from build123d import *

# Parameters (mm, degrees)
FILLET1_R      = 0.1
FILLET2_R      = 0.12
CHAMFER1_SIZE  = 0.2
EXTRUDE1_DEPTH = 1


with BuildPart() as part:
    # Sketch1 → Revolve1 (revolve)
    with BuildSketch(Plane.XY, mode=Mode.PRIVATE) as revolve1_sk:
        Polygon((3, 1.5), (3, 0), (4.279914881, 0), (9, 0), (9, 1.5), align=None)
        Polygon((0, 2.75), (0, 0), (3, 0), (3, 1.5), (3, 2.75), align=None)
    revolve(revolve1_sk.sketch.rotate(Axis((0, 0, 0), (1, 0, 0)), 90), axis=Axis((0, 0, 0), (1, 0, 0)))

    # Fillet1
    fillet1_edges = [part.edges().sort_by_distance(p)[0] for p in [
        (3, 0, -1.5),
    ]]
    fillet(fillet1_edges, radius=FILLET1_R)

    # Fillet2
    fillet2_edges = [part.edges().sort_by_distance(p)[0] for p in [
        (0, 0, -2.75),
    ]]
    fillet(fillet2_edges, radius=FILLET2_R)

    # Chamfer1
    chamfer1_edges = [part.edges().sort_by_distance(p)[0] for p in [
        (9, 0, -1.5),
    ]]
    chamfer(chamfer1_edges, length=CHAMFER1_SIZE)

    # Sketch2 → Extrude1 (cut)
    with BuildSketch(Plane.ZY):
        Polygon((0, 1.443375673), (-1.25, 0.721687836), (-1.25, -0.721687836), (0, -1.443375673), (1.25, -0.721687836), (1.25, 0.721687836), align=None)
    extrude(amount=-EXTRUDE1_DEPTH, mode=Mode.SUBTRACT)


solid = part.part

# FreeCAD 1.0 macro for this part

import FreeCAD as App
import Part
import Sketcher
Q = App.Units.Quantity


def edges_at(feature, points):
    """Names of the edges that pass closest to the given points."""
    edges = feature.Shape.Edges
    near = lambda p: min(range(len(edges)), key=lambda i: edges[i].distToShape(Part.Vertex(*p))[0])
    return sorted({f"Edge{near(p) + 1}" for p in points})


def add_polygon(sketch, points):
    """Adds a closed chain of lines whose ends are joined by coincident constraints."""
    first, n = sketch.GeometryCount, len(points)
    for a, b in zip(points, points[1:] + points[:1]):
        sketch.addGeometry(Part.LineSegment(App.Vector(*a, 0), App.Vector(*b, 0)), False)
    for i in range(n):
        sketch.addConstraint(Sketcher.Constraint("Coincident", first + i, 2, first + (i + 1) % n, 1))

doc = App.newDocument("Part")
params = doc.addObject("Spreadsheet::Sheet", "Params")
for row, (alias, value) in enumerate([
    ("sketch1_width", "6 mm"),
    ("sketch1_width2", "3 mm"),
    ("sketch1_height", "1.5 mm"),
    ("sketch1_height2", "1.25 mm"),
    ("revolution_angle", "360 deg"),
    ("fillet_radius", "0.1 mm"),
    ("fillet2_radius", "0.12 mm"),
    ("chamfer_size", "0.2 mm"),
    ("pocket1_length", "1 mm"),
], start=1):
    params.set(f"A{row}", alias)
    params.set(f"B{row}", "=" + value)
    params.setAlias(f"B{row}", alias)

body = doc.addObject("PartDesign::Body", "Body")

sketch1 = body.newObject("Sketcher::SketchObject", "Sketch")
sketch1.AttachmentSupport = (doc.getObject("XY_Plane"), [""])
sketch1.MapMode = "FlatFace"
add_polygon(sketch1, [(9, 0), (9, 1.5), (3, 1.5), (3, 2.8), (0, 2.8), (0, 0)])
sketch1.addConstraint(Sketcher.Constraint("Vertical", 0))
sketch1.addConstraint(Sketcher.Constraint("Horizontal", 1))
sketch1.addConstraint(Sketcher.Constraint("Vertical", 2))
sketch1.addConstraint(Sketcher.Constraint("Horizontal", 3))
sketch1.addConstraint(Sketcher.Constraint("Vertical", 4))
sketch1.addConstraint(Sketcher.Constraint("Horizontal", 5))
sketch1.addConstraint(Sketcher.Constraint("Coincident", 4, 2, -1, 1))
sketch1.addConstraint(Sketcher.Constraint("DistanceX", 1, 2, 1, 1, Q("6 mm")))
sketch1.addConstraint(Sketcher.Constraint("DistanceX", 3, 2, 3, 1, Q("3 mm")))
sketch1.addConstraint(Sketcher.Constraint("DistanceY", 0, 1, 0, 2, Q("1.5 mm")))
sketch1.addConstraint(Sketcher.Constraint("DistanceY", 2, 1, 2, 2, Q("1.25 mm")))
sketch1.setExpression("Constraints[13]", "Params.sketch1_width")
sketch1.setExpression("Constraints[14]", "Params.sketch1_width2")
sketch1.setExpression("Constraints[15]", "Params.sketch1_height")
sketch1.setExpression("Constraints[16]", "Params.sketch1_height2")
revolution = body.newObject("PartDesign::Revolution", "Revolution")
revolution.Profile = sketch1
revolution.ReferenceAxis = (sketch1, ["H_Axis"])
revolution.setExpression("Angle", "Params.revolution_angle")
doc.recompute()

fillet = body.newObject("PartDesign::Fillet", "Fillet")
fillet.Base = (revolution, edges_at(revolution, [(3, 0, -1.5)]))
fillet.setExpression("Radius", "Params.fillet_radius")
doc.recompute()

fillet2 = body.newObject("PartDesign::Fillet", "Fillet001")
fillet2.Base = (fillet, edges_at(fillet, [(0, 0, -2.75)]))
fillet2.setExpression("Radius", "Params.fillet2_radius")
doc.recompute()

chamfer = body.newObject("PartDesign::Chamfer", "Chamfer")
chamfer.Base = (fillet2, edges_at(fillet2, [(9, 0, -1.5)]))
chamfer.setExpression("Size", "Params.chamfer_size")

sketch2 = body.newObject("Sketcher::SketchObject", "Sketch001")
sketch2.AttachmentSupport = (doc.getObject("YZ_Plane"), [""])
sketch2.MapMode = "FlatFace"
add_polygon(sketch2, [(1.4, 0), (0.7, -1.2), (-0.7, -1.2), (-1.4, 0), (-0.7, 1.2), (0.7, 1.2)])
sketch2.addConstraint(Sketcher.Constraint("Horizontal", 1))
sketch2.addConstraint(Sketcher.Constraint("Horizontal", 4))
sketch2.addConstraint(Sketcher.Constraint("Symmetric", 0, 2, 3, 2, -1, 1))
sketch2.addConstraint(Sketcher.Constraint("Symmetric", 2, 2, 5, 2, -1, 1))
sketch2.addConstraint(Sketcher.Constraint("PointOnObject", 2, 2, -1))
sketch2.addConstraint(Sketcher.Constraint("Parallel", 2, 5))
sketch2.addConstraint(Sketcher.Constraint("Vertical", 1, 2, 3, 2))
sketch2.addConstraint(Sketcher.Constraint("Angle", 0, Q("-120 deg")))
sketch2.addConstraint(Sketcher.Constraint("DistanceY", 1, 2, 3, 2, Q("2.5 mm")))
sketch2.addConstraint(Sketcher.Constraint("DistanceX", 1, 2, 1, 1, Q("1.443376 mm")))
pocket1 = body.newObject("PartDesign::Pocket", "Pocket")
pocket1.Profile = sketch2
pocket1.setExpression("Length", "Params.pocket1_length")
pocket1.Reversed = True

doc.recompute()
